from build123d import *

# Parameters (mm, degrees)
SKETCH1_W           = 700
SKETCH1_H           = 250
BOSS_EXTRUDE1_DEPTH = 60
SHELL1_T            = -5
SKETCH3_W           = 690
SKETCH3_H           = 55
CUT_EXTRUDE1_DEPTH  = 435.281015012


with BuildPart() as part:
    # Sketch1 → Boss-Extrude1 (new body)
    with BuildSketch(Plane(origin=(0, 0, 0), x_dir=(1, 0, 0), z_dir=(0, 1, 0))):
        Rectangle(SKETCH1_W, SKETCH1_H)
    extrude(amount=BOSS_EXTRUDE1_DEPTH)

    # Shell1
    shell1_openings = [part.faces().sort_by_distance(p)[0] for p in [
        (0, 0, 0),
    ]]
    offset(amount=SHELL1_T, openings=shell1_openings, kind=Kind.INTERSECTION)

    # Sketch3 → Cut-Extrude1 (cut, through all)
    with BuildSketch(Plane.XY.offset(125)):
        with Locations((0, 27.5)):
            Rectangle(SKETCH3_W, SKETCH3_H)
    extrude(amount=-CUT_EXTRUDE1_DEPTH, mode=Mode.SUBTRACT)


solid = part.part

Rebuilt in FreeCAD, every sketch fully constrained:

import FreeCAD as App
import Part
import Sketcher
Q = App.Units.Quantity


def faces_at(feature, points):
    """Names of the faces that lie closest to the given points."""
    faces = feature.Shape.Faces
    near = lambda p: min(range(len(faces)), key=lambda i: faces[i].distToShape(Part.Vertex(*p))[0])
    return sorted({f"Face{near(p) + 1}" for p in points})

doc = App.newDocument("Part")
body = doc.addObject("PartDesign::Body", "Body")

# Sketch on XZ plane
sketch1 = doc.addObject("Sketcher::SketchObject", "Sketch")
body.addObject(sketch1)
sketch1.AttachmentSupport = (doc.XZ_Plane, [""])
sketch1.MapMode = "FlatFace"
sketch1.addGeometry([
    Part.LineSegment(App.Vector(-350, -125, 0), App.Vector(-350, 125, 0)),
    Part.LineSegment(App.Vector(-350, 125, 0), App.Vector(350, 125, 0)),
    Part.LineSegment(App.Vector(350, 125, 0), App.Vector(350, -125, 0)),
    Part.LineSegment(App.Vector(350, -125, 0), App.Vector(-350, -125, 0)),
], False)
sketch1.addConstraint([
    Sketcher.Constraint("Coincident", 0, 2, 1, 1),
    Sketcher.Constraint("Coincident", 1, 2, 2, 1),
    Sketcher.Constraint("Coincident", 2, 2, 3, 1),
    Sketcher.Constraint("Coincident", 3, 2, 0, 1),
    Sketcher.Constraint("Vertical", 0),
    Sketcher.Constraint("Horizontal", 1),
    Sketcher.Constraint("Vertical", 2),
    Sketcher.Constraint("Horizontal", 3),
    Sketcher.Constraint("Symmetric", 0, 2, 2, 2, -1, 1),
    Sketcher.Constraint("DistanceX", 1, 1, 1, 2, Q("700 mm")),
    Sketcher.Constraint("DistanceY", 0, 1, 0, 2, Q("250 mm")),
])
pad1 = doc.addObject("PartDesign::Pad", "Pad")
body.addObject(pad1)
pad1.Profile = sketch1
pad1.Length = 60
pad1.Reversed = True
doc.recompute()

thickness = doc.addObject("PartDesign::Thickness", "Thickness")
body.addObject(thickness)
thickness.Base = (pad1, faces_at(pad1, [(0, 0, 0)]))
thickness.Value = 5
thickness.Reversed = True
thickness.Join = "Intersection"

# Sketch on XY plane
sketch2 = doc.addObject("Sketcher::SketchObject", "Sketch001")
body.addObject(sketch2)
sketch2.AttachmentSupport = (doc.XY_Plane, [""])
sketch2.MapMode = "FlatFace"
sketch2.AttachmentOffset = App.Placement(App.Vector(0, 0, 125), App.Rotation())
sketch2.addGeometry([
    Part.LineSegment(App.Vector(-345, 55, 0), App.Vector(-345, 0, 0)),
    Part.LineSegment(App.Vector(-345, 0, 0), App.Vector(345, 0, 0)),
    Part.LineSegment(App.Vector(345, 0, 0), App.Vector(345, 55, 0)),
    Part.LineSegment(App.Vector(345, 55, 0), App.Vector(-345, 55, 0)),
], False)
sketch2.addConstraint([
    Sketcher.Constraint("Coincident", 0, 2, 1, 1),
    Sketcher.Constraint("Coincident", 1, 2, 2, 1),
    Sketcher.Constraint("Coincident", 2, 2, 3, 1),
    Sketcher.Constraint("Coincident", 3, 2, 0, 1),
    Sketcher.Constraint("Vertical", 0),
    Sketcher.Constraint("Horizontal", 1),
    Sketcher.Constraint("Vertical", 2),
    Sketcher.Constraint("Horizontal", 3),
    Sketcher.Constraint("Symmetric", 0, 2, 1, 2, -1, 1),
    Sketcher.Constraint("DistanceX", 1, 1, 1, 2, Q("690 mm")),
    Sketcher.Constraint("DistanceY", 0, 2, 0, 1, Q("55 mm")),
])
pocket1 = doc.addObject("PartDesign::Pocket", "Pocket")
body.addObject(pocket1)
pocket1.Profile = sketch2
pocket1.Type = "ThroughAll"

doc.recompute()
